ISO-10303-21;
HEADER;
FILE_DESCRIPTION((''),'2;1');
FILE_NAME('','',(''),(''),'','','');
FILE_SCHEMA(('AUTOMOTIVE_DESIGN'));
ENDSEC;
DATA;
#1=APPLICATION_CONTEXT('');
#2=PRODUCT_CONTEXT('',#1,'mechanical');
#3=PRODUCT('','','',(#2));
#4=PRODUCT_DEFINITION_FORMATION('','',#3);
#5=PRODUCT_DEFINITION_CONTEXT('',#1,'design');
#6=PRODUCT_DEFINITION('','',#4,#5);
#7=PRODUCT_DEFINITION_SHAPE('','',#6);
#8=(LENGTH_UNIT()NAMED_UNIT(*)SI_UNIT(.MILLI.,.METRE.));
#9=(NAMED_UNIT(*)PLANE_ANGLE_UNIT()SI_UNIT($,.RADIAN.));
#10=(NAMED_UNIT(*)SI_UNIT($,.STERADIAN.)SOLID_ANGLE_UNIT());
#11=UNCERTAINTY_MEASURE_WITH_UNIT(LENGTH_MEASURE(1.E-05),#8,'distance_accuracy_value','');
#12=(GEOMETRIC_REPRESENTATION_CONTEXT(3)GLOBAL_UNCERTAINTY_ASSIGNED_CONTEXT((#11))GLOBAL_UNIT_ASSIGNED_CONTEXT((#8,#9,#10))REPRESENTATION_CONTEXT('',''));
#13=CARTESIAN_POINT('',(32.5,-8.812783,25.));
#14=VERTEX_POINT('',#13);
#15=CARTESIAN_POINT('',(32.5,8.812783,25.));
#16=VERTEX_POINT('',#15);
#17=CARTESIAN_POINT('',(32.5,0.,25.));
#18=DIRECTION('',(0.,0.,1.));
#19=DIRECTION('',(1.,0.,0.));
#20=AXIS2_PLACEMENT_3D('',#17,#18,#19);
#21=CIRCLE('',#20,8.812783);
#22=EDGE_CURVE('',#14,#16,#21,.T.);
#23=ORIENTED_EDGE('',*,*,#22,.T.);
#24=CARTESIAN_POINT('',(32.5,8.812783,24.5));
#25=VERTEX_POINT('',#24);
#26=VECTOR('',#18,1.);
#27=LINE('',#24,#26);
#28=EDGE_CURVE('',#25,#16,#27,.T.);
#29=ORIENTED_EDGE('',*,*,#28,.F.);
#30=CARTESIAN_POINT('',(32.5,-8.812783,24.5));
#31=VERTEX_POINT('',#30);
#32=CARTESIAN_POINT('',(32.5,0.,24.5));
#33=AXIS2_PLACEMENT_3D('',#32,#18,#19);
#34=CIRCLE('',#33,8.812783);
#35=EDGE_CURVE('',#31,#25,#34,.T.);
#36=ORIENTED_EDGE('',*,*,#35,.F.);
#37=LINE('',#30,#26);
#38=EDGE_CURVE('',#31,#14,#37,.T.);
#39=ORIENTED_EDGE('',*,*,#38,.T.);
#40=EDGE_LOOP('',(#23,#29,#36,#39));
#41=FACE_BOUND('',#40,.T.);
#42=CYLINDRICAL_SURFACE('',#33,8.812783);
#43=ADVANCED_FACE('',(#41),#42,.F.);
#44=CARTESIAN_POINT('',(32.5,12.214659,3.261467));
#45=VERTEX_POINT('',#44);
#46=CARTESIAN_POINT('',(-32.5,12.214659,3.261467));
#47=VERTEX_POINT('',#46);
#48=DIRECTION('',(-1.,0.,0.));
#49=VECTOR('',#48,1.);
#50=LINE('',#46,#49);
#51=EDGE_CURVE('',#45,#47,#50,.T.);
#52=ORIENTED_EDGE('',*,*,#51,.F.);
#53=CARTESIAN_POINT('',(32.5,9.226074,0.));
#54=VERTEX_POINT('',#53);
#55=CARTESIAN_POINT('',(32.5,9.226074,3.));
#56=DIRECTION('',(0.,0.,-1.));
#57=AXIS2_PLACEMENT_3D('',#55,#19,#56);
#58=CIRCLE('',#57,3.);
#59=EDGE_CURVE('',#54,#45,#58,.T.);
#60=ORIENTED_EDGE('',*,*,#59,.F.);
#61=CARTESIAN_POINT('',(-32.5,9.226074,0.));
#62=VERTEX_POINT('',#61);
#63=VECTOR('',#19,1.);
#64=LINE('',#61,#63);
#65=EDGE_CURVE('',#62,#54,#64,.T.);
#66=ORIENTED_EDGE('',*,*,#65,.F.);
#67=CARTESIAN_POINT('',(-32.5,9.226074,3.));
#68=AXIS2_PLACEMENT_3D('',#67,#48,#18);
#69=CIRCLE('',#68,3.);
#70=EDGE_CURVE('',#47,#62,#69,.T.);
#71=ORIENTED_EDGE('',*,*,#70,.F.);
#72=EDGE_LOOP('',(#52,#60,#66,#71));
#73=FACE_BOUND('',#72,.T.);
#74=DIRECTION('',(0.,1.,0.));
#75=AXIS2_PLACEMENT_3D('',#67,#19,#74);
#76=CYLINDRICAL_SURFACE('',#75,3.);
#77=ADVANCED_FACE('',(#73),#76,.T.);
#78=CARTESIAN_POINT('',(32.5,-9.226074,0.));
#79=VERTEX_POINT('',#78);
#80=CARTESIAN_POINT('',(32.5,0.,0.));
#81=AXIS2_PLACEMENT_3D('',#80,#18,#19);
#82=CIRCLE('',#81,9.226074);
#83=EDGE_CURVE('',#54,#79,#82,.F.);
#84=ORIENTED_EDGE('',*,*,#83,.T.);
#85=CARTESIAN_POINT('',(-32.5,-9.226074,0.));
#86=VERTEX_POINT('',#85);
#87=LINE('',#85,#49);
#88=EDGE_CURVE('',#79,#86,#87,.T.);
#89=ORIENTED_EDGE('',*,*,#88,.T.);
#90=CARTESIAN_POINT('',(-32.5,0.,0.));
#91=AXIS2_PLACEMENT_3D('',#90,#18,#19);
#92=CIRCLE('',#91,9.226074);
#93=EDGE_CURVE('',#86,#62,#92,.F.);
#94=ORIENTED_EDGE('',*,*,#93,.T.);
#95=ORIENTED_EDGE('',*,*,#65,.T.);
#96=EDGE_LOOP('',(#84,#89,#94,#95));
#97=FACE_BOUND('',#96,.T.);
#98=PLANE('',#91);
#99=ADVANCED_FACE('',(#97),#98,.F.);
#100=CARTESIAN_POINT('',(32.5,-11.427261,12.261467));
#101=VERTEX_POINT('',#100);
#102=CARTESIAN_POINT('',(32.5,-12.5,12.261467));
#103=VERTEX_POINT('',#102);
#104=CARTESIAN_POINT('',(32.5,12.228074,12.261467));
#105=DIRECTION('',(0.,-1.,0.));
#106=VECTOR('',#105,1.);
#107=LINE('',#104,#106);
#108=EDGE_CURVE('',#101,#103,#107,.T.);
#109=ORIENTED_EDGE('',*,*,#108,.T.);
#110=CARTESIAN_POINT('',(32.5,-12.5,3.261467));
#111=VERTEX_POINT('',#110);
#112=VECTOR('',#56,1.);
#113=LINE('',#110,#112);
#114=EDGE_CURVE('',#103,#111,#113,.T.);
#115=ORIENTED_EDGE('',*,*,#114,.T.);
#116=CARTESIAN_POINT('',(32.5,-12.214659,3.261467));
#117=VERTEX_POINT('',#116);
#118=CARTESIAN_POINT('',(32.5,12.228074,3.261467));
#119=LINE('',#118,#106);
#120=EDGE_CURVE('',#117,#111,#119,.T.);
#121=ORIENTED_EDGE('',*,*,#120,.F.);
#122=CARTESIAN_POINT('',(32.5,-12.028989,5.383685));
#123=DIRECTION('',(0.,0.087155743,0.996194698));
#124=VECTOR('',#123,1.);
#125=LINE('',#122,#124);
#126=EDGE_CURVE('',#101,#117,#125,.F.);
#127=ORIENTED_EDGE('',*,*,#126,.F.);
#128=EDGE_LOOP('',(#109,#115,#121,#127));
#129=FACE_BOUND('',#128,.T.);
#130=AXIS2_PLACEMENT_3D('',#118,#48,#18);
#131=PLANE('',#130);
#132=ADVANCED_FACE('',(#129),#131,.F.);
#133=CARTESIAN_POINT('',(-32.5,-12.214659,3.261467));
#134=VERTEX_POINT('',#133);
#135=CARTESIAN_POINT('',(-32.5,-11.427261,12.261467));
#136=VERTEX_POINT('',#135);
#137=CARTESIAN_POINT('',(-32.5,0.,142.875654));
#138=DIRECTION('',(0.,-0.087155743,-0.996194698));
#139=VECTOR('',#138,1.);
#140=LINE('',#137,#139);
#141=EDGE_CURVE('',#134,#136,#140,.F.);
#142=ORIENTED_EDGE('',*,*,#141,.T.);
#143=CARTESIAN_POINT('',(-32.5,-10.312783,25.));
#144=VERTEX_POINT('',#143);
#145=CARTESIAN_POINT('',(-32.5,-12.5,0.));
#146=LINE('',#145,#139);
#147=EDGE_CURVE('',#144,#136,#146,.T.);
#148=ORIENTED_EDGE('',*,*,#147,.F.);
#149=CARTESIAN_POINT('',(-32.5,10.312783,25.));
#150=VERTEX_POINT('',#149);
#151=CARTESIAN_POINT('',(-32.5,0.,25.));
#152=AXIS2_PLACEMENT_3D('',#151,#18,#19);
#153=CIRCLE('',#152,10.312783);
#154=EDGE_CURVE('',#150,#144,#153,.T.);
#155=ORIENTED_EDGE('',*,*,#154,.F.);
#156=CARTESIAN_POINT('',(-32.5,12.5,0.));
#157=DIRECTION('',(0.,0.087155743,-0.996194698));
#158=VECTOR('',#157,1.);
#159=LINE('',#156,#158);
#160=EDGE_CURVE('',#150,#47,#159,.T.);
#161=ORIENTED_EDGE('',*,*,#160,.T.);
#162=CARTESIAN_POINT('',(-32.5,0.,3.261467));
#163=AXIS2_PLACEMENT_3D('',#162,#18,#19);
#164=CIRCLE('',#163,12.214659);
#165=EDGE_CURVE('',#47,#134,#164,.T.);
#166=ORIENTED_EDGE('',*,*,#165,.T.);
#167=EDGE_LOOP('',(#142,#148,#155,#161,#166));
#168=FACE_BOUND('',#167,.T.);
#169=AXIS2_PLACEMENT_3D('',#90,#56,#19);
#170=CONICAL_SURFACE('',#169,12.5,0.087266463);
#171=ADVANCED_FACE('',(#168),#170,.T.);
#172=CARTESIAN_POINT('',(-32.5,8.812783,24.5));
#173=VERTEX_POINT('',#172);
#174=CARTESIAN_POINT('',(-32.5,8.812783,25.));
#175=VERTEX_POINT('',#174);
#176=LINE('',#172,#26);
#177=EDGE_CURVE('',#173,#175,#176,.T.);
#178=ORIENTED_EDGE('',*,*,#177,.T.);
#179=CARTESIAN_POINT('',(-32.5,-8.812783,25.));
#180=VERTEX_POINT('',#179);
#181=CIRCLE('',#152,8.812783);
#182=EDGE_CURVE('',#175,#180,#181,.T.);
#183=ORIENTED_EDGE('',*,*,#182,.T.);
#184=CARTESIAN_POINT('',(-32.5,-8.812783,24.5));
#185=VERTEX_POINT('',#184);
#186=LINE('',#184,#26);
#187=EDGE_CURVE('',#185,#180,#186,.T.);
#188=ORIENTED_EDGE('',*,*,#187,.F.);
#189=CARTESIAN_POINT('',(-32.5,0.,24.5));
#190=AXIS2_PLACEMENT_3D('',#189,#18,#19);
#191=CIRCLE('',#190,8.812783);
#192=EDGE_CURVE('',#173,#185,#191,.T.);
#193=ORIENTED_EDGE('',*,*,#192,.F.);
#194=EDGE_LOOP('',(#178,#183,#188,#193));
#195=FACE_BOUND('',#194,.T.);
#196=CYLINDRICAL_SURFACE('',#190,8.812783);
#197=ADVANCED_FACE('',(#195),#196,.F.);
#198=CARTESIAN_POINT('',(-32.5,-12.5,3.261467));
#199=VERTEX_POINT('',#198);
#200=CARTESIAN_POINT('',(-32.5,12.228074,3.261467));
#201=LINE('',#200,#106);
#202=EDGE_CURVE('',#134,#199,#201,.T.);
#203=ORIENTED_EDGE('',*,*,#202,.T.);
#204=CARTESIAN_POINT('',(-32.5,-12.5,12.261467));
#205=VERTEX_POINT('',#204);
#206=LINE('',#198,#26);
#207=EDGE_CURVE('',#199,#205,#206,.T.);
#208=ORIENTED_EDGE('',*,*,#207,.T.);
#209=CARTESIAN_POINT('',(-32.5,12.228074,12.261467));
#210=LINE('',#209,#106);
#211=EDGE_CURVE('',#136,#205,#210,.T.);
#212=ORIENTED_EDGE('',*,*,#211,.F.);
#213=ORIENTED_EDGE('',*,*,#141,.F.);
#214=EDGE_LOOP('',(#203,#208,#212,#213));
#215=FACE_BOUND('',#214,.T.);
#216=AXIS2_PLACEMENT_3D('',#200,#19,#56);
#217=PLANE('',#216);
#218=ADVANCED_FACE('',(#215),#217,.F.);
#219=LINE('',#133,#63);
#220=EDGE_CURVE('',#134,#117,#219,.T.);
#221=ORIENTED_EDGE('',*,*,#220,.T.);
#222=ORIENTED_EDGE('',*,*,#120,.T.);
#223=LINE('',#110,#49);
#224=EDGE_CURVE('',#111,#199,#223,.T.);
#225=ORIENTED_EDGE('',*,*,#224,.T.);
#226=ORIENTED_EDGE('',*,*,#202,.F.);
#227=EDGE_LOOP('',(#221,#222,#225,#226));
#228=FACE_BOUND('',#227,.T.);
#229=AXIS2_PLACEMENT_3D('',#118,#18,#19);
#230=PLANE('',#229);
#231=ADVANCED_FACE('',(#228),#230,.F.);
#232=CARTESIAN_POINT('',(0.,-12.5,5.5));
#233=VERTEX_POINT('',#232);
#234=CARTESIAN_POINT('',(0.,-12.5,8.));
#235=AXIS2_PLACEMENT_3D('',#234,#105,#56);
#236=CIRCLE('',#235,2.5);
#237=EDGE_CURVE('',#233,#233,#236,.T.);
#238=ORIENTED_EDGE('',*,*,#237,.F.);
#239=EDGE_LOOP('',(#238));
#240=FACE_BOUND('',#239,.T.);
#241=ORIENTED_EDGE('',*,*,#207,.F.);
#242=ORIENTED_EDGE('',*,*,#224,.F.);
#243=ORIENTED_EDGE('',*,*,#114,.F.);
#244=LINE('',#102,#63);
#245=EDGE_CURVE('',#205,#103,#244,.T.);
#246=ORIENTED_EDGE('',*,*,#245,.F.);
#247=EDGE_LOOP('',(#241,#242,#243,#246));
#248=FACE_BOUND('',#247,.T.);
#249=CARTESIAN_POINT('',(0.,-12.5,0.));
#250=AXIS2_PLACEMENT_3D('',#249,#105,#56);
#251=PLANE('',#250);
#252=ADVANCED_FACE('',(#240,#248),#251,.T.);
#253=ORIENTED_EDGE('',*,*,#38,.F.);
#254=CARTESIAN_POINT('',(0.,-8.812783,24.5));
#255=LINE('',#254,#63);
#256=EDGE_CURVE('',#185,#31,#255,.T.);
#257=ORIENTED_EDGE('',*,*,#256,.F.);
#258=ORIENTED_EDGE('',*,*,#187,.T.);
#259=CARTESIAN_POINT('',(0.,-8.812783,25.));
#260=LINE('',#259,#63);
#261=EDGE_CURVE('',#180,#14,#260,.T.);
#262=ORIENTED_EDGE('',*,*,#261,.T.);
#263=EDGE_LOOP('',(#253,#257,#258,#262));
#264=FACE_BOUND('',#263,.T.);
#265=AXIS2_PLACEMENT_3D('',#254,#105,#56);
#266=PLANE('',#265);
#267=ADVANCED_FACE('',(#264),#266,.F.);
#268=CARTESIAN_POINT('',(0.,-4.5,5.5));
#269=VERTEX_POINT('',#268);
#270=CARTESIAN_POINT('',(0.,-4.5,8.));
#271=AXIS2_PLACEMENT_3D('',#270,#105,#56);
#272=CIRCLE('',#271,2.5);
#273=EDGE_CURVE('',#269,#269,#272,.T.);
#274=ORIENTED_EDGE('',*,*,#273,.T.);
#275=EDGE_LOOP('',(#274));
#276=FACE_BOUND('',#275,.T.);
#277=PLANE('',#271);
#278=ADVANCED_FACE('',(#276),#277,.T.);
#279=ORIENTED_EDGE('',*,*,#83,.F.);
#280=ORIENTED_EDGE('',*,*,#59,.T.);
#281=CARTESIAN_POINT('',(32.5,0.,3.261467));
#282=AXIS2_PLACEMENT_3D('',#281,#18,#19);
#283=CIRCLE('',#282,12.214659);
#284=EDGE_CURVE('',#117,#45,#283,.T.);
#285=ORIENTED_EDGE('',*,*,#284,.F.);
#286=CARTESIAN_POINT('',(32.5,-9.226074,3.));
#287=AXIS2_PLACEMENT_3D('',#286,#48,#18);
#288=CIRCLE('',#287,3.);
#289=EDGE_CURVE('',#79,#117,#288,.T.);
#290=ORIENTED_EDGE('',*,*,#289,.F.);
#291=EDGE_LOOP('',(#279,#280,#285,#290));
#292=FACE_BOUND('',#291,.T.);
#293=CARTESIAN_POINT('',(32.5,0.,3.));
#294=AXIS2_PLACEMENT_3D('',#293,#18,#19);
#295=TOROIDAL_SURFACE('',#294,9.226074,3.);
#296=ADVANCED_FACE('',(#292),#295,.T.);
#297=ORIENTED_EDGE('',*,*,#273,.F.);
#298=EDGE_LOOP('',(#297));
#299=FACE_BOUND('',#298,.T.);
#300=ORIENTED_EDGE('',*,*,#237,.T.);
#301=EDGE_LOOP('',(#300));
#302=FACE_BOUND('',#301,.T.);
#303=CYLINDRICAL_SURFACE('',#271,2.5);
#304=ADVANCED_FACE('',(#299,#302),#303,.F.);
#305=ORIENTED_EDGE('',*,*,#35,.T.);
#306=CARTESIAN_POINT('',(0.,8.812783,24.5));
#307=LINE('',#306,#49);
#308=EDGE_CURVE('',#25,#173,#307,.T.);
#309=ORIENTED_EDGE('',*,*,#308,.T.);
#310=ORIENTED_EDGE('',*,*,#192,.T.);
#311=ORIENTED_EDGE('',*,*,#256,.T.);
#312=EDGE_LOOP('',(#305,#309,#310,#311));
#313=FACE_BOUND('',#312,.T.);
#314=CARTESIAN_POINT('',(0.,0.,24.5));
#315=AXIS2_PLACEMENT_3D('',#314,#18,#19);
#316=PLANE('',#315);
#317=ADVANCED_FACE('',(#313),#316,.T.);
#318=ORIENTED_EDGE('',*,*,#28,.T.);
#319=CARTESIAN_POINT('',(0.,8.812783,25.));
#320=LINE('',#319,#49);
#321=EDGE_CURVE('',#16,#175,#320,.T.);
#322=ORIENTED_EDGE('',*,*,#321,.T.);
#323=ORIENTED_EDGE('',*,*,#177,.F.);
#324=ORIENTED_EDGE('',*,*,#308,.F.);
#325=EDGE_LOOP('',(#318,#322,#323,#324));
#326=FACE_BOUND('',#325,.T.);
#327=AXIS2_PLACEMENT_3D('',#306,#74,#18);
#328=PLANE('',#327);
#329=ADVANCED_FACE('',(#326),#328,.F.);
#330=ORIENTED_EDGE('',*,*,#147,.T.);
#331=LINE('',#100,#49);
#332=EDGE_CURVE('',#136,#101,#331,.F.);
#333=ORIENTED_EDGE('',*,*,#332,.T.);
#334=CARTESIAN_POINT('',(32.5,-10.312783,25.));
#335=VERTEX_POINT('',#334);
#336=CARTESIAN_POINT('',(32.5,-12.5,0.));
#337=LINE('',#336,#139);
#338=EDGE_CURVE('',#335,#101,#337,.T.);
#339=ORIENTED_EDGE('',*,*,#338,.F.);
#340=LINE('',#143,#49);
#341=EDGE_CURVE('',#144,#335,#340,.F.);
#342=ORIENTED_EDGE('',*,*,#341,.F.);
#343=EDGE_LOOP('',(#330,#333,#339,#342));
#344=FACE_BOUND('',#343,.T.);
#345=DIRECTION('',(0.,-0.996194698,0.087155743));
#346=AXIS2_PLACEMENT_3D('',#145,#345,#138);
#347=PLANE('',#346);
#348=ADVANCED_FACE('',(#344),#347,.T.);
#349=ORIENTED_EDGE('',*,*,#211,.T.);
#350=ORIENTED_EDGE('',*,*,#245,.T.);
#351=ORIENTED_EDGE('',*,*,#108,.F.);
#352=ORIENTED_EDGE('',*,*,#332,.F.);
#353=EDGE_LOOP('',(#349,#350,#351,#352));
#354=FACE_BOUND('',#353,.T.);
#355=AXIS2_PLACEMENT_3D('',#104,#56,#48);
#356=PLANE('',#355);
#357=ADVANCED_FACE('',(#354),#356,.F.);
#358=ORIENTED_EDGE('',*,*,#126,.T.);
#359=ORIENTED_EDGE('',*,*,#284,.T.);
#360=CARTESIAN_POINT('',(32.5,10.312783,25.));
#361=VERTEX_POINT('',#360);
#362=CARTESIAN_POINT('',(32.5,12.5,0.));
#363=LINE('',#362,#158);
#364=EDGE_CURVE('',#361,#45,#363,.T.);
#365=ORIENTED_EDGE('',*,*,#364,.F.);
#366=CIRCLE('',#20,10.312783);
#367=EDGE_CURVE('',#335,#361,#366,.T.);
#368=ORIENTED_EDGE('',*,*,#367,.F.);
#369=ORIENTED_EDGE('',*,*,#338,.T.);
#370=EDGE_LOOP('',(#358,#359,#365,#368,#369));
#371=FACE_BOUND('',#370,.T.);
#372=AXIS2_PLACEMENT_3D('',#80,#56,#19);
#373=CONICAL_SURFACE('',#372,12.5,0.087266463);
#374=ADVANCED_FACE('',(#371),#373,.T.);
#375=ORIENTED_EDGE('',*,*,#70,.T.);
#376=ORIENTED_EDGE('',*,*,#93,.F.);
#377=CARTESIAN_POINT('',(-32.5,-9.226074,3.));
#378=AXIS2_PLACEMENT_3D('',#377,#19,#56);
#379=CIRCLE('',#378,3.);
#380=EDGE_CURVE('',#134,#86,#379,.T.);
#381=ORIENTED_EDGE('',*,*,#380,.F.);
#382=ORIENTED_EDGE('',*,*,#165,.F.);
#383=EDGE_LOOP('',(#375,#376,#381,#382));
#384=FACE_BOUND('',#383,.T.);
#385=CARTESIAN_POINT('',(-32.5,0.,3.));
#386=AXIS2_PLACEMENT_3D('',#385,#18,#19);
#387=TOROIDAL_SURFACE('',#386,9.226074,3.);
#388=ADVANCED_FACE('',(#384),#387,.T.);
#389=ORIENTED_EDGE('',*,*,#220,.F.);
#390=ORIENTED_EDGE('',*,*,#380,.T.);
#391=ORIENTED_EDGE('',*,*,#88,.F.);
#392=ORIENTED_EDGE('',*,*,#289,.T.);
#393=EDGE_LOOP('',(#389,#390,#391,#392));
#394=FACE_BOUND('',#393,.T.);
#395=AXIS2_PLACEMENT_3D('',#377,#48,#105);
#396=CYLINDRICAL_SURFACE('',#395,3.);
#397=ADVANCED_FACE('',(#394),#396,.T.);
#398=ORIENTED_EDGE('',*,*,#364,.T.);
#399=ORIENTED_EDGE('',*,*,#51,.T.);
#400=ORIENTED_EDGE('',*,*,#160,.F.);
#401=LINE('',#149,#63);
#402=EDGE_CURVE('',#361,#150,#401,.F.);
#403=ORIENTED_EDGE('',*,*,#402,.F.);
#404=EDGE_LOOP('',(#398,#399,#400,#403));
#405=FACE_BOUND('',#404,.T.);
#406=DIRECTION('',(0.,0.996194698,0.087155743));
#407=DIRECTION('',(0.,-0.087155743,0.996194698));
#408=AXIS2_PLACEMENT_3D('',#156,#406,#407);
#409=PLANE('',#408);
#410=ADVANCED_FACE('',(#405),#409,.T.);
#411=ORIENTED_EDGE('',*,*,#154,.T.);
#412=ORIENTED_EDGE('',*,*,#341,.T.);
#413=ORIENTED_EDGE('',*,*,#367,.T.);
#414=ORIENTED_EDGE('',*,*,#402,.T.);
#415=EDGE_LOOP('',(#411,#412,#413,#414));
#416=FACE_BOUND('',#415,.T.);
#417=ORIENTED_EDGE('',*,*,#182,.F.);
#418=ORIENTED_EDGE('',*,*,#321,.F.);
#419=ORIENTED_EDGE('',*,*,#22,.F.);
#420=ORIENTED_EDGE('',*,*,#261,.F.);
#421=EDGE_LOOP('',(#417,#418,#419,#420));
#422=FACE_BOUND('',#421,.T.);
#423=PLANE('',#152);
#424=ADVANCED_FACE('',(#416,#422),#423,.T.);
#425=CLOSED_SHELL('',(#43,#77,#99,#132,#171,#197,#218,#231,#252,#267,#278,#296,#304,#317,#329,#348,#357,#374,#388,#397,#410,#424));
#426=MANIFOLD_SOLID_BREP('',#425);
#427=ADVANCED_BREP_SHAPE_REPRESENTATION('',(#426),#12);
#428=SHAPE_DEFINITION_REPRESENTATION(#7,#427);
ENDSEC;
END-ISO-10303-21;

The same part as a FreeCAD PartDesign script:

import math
import FreeCAD as App
import Part
import Sketcher
from FreeCAD import Vector


def edges_at(feature, points):
    """Names of the edges that pass closest to the given points."""
    edges = feature.Shape.Edges
    near = lambda p: min(range(len(edges)), key=lambda i: edges[i].distToShape(Part.Vertex(*p))[0])
    return sorted({f"Edge{near(p) + 1}" for p in points})


def add_polygon(sketch, points):
    """Adds a closed chain of lines whose ends are joined by coincident constraints."""
    first, n = sketch.GeometryCount, len(points)
    for a, b in zip(points, points[1:] + points[:1]):
        sketch.addGeometry(Part.LineSegment(App.Vector(*a, 0), App.Vector(*b, 0)), False)
    for i in range(n):
        sketch.addConstraint(Sketcher.Constraint("Coincident", first + i, 2, first + (i + 1) % n, 1))

doc = App.newDocument("Part")
params = doc.addObject("Spreadsheet::Sheet", "Params")
for row, (alias, value) in enumerate([
    ("sketch1_radius", "12.5 mm"),
    ("sketch1_width", "65 mm"),
    ("pad1_length", "25 mm"),
    ("pad1_taper", "-5 deg"),
    ("fillet_radius", "3 mm"),
    ("sketch2_width", "65 mm"),
    ("pocket1_length", "0.5 mm"),
    ("sketch3_width", "65 mm"),
    ("sketch3_height", "9 mm"),
    ("sketch4_diameter", "5 mm"),
    ("pocket2_length", "8 mm"),
], start=1):
    params.set(f"A{row}", alias)
    params.set(f"B{row}", "=" + value)
    params.setAlias(f"B{row}", alias)

body = doc.addObject("PartDesign::Body", "Body")

sketch1 = body.newObject("Sketcher::SketchObject", "Sketch")
sketch1.AttachmentSupport = (doc.getObject("XY_Plane"), [""])
sketch1.MapMode = "FlatFace"
sketch1.addGeometry(Part.ArcOfCircle(Part.Circle(Vector(-32, 0, 0), Vector(0, 0, 1), 12), math.radians(90), math.radians(270)), False)
sketch1.addGeometry(Part.LineSegment(Vector(-32, -12, 0), Vector(32, -12, 0)), False)
sketch1.addGeometry(Part.ArcOfCircle(Part.Circle(Vector(32, 0, 0), Vector(0, 0, 1), 12), math.radians(-90), math.radians(90)), False)
sketch1.addGeometry(Part.LineSegment(Vector(32, 12, 0), Vector(-32, 12, 0)), False)
sketch1.addConstraint(Sketcher.Constraint("Tangent", 0, 2, 1, 1))
sketch1.addConstraint(Sketcher.Constraint("Tangent", 1, 2, 2, 1))
sketch1.addConstraint(Sketcher.Constraint("Tangent", 2, 2, 3, 1))
sketch1.addConstraint(Sketcher.Constraint("Tangent", 3, 2, 0, 1))
sketch1.addConstraint(Sketcher.Constraint("Horizontal", 1))
sketch1.addConstraint(Sketcher.Constraint("Horizontal", 3))
sketch1.addConstraint(Sketcher.Constraint("Symmetric", 0, 3, 2, 3, -1, 1))
sketch1.addConstraint(Sketcher.Constraint("Radius", 0, 12.5))
sketch1.addConstraint(Sketcher.Constraint("DistanceX", 1, 1, 1, 2, 65.0))
sketch1.setExpression("Constraints[7]", "Params.sketch1_radius")
sketch1.setExpression("Constraints[8]", "Params.sketch1_width")
pad1 = body.newObject("PartDesign::Pad", "Pad")
pad1.Profile = sketch1
pad1.setExpression("Length", "Params.pad1_length")
pad1.setExpression("TaperAngle", "Params.pad1_taper")
doc.recompute()

fillet = body.newObject("PartDesign::Fillet", "Fillet")
fillet.Base = (pad1, edges_at(pad1, [
    (0, 12.5, 0),
    (45, 0, 0),
    (0, -12.5, 0),
    (-45, 0, 0),
]))
fillet.setExpression("Radius", "Params.fillet_radius")

sketch2 = body.newObject("Sketcher::SketchObject", "Sketch001")
sketch2.AttachmentSupport = (doc.getObject("XY_Plane"), [""])
sketch2.MapMode = "FlatFace"
sketch2.AttachmentOffset = App.Placement(Vector(0, 0, 25), App.Rotation())
sketch2.addGeometry(Part.LineSegment(Vector(-32, -9, 0), Vector(32, -9, 0)), False)
sketch2.addGeometry(Part.ArcOfCircle(Part.Circle(Vector(32, 0, 0), Vector(0, 0, 1), 9), math.radians(-90), math.radians(90)), False)
sketch2.addGeometry(Part.LineSegment(Vector(32, 9, 0), Vector(-32, 9, 0)), False)
sketch2.addGeometry(Part.ArcOfCircle(Part.Circle(Vector(-32, 0, 0), Vector(0, 0, 1), 9), math.radians(90), math.radians(270)), False)
sketch2.addConstraint(Sketcher.Constraint("Tangent", 0, 2, 1, 1))
sketch2.addConstraint(Sketcher.Constraint("Tangent", 1, 2, 2, 1))
sketch2.addConstraint(Sketcher.Constraint("Tangent", 2, 2, 3, 1))
sketch2.addConstraint(Sketcher.Constraint("Tangent", 3, 2, 0, 1))
sketch2.addConstraint(Sketcher.Constraint("Horizontal", 0))
sketch2.addConstraint(Sketcher.Constraint("Horizontal", 2))
sketch2.addConstraint(Sketcher.Constraint("Symmetric", 1, 3, 3, 3, -1, 1))
sketch2.addConstraint(Sketcher.Constraint("DistanceX", 0, 1, 0, 2, 65.0))
sketch2.addConstraint(Sketcher.Constraint("Radius", 1, 8.812783))
sketch2.setExpression("Constraints[7]", "Params.sketch2_width")
pocket1 = body.newObject("PartDesign::Pocket", "Pocket")
pocket1.Profile = sketch2
pocket1.setExpression("Length", "Params.pocket1_length")

sketch3 = body.newObject("Sketcher::SketchObject", "Sketch002")
sketch3.AttachmentSupport = (doc.getObject("XZ_Plane"), [""])
sketch3.MapMode = "FlatFace"
sketch3.AttachmentOffset = App.Placement(Vector(0, 0, 12.5), App.Rotation())
add_polygon(sketch3, [(-32, 3), (-32, 12), (32, 12), (32, 3)])
sketch3.addConstraint(Sketcher.Constraint("Vertical", 0))
sketch3.addConstraint(Sketcher.Constraint("Horizontal", 1))
sketch3.addConstraint(Sketcher.Constraint("Vertical", 2))
sketch3.addConstraint(Sketcher.Constraint("Horizontal", 3))
sketch3.addConstraint(Sketcher.Constraint("DistanceX", 1, 1, 1, 2, 65.0))
sketch3.addConstraint(Sketcher.Constraint("DistanceY", 0, 1, 0, 2, 9.0))
sketch3.addConstraint(Sketcher.Constraint("DistanceX", 0, 2, -1, 1, 32.5))
sketch3.addConstraint(Sketcher.Constraint("DistanceY", -1, 1, 0, 2, 12.261467))
sketch3.setExpression("Constraints[8]", "Params.sketch3_width")
sketch3.setExpression("Constraints[9]", "Params.sketch3_height")
pad2 = body.newObject("PartDesign::Pad", "Pad001")
pad2.Profile = sketch3
pad2.Type = "UpToFirst"
pad2.Reversed = True

sketch4 = body.newObject("Sketcher::SketchObject", "Sketch003")
sketch4.AttachmentSupport = (doc.getObject("XZ_Plane"), [""])
sketch4.MapMode = "FlatFace"
sketch4.AttachmentOffset = App.Placement(Vector(0, 0, 12.5), App.Rotation())
sketch4.addGeometry(Part.Circle(Vector(0, 8, 0), Vector(0, 0, 1), 2.5), False)
sketch4.addConstraint(Sketcher.Constraint("PointOnObject", 0, 3, -2))
sketch4.addConstraint(Sketcher.Constraint("Diameter", 0, 5.0))
sketch4.addConstraint(Sketcher.Constraint("DistanceY", -1, 1, 0, 3, 8.0))
sketch4.setExpression("Constraints[1]", "Params.sketch4_diameter")
pocket2 = body.newObject("PartDesign::Pocket", "Pocket001")
pocket2.Profile = sketch4
pocket2.setExpression("Length", "Params.pocket2_length")

doc.recompute()
